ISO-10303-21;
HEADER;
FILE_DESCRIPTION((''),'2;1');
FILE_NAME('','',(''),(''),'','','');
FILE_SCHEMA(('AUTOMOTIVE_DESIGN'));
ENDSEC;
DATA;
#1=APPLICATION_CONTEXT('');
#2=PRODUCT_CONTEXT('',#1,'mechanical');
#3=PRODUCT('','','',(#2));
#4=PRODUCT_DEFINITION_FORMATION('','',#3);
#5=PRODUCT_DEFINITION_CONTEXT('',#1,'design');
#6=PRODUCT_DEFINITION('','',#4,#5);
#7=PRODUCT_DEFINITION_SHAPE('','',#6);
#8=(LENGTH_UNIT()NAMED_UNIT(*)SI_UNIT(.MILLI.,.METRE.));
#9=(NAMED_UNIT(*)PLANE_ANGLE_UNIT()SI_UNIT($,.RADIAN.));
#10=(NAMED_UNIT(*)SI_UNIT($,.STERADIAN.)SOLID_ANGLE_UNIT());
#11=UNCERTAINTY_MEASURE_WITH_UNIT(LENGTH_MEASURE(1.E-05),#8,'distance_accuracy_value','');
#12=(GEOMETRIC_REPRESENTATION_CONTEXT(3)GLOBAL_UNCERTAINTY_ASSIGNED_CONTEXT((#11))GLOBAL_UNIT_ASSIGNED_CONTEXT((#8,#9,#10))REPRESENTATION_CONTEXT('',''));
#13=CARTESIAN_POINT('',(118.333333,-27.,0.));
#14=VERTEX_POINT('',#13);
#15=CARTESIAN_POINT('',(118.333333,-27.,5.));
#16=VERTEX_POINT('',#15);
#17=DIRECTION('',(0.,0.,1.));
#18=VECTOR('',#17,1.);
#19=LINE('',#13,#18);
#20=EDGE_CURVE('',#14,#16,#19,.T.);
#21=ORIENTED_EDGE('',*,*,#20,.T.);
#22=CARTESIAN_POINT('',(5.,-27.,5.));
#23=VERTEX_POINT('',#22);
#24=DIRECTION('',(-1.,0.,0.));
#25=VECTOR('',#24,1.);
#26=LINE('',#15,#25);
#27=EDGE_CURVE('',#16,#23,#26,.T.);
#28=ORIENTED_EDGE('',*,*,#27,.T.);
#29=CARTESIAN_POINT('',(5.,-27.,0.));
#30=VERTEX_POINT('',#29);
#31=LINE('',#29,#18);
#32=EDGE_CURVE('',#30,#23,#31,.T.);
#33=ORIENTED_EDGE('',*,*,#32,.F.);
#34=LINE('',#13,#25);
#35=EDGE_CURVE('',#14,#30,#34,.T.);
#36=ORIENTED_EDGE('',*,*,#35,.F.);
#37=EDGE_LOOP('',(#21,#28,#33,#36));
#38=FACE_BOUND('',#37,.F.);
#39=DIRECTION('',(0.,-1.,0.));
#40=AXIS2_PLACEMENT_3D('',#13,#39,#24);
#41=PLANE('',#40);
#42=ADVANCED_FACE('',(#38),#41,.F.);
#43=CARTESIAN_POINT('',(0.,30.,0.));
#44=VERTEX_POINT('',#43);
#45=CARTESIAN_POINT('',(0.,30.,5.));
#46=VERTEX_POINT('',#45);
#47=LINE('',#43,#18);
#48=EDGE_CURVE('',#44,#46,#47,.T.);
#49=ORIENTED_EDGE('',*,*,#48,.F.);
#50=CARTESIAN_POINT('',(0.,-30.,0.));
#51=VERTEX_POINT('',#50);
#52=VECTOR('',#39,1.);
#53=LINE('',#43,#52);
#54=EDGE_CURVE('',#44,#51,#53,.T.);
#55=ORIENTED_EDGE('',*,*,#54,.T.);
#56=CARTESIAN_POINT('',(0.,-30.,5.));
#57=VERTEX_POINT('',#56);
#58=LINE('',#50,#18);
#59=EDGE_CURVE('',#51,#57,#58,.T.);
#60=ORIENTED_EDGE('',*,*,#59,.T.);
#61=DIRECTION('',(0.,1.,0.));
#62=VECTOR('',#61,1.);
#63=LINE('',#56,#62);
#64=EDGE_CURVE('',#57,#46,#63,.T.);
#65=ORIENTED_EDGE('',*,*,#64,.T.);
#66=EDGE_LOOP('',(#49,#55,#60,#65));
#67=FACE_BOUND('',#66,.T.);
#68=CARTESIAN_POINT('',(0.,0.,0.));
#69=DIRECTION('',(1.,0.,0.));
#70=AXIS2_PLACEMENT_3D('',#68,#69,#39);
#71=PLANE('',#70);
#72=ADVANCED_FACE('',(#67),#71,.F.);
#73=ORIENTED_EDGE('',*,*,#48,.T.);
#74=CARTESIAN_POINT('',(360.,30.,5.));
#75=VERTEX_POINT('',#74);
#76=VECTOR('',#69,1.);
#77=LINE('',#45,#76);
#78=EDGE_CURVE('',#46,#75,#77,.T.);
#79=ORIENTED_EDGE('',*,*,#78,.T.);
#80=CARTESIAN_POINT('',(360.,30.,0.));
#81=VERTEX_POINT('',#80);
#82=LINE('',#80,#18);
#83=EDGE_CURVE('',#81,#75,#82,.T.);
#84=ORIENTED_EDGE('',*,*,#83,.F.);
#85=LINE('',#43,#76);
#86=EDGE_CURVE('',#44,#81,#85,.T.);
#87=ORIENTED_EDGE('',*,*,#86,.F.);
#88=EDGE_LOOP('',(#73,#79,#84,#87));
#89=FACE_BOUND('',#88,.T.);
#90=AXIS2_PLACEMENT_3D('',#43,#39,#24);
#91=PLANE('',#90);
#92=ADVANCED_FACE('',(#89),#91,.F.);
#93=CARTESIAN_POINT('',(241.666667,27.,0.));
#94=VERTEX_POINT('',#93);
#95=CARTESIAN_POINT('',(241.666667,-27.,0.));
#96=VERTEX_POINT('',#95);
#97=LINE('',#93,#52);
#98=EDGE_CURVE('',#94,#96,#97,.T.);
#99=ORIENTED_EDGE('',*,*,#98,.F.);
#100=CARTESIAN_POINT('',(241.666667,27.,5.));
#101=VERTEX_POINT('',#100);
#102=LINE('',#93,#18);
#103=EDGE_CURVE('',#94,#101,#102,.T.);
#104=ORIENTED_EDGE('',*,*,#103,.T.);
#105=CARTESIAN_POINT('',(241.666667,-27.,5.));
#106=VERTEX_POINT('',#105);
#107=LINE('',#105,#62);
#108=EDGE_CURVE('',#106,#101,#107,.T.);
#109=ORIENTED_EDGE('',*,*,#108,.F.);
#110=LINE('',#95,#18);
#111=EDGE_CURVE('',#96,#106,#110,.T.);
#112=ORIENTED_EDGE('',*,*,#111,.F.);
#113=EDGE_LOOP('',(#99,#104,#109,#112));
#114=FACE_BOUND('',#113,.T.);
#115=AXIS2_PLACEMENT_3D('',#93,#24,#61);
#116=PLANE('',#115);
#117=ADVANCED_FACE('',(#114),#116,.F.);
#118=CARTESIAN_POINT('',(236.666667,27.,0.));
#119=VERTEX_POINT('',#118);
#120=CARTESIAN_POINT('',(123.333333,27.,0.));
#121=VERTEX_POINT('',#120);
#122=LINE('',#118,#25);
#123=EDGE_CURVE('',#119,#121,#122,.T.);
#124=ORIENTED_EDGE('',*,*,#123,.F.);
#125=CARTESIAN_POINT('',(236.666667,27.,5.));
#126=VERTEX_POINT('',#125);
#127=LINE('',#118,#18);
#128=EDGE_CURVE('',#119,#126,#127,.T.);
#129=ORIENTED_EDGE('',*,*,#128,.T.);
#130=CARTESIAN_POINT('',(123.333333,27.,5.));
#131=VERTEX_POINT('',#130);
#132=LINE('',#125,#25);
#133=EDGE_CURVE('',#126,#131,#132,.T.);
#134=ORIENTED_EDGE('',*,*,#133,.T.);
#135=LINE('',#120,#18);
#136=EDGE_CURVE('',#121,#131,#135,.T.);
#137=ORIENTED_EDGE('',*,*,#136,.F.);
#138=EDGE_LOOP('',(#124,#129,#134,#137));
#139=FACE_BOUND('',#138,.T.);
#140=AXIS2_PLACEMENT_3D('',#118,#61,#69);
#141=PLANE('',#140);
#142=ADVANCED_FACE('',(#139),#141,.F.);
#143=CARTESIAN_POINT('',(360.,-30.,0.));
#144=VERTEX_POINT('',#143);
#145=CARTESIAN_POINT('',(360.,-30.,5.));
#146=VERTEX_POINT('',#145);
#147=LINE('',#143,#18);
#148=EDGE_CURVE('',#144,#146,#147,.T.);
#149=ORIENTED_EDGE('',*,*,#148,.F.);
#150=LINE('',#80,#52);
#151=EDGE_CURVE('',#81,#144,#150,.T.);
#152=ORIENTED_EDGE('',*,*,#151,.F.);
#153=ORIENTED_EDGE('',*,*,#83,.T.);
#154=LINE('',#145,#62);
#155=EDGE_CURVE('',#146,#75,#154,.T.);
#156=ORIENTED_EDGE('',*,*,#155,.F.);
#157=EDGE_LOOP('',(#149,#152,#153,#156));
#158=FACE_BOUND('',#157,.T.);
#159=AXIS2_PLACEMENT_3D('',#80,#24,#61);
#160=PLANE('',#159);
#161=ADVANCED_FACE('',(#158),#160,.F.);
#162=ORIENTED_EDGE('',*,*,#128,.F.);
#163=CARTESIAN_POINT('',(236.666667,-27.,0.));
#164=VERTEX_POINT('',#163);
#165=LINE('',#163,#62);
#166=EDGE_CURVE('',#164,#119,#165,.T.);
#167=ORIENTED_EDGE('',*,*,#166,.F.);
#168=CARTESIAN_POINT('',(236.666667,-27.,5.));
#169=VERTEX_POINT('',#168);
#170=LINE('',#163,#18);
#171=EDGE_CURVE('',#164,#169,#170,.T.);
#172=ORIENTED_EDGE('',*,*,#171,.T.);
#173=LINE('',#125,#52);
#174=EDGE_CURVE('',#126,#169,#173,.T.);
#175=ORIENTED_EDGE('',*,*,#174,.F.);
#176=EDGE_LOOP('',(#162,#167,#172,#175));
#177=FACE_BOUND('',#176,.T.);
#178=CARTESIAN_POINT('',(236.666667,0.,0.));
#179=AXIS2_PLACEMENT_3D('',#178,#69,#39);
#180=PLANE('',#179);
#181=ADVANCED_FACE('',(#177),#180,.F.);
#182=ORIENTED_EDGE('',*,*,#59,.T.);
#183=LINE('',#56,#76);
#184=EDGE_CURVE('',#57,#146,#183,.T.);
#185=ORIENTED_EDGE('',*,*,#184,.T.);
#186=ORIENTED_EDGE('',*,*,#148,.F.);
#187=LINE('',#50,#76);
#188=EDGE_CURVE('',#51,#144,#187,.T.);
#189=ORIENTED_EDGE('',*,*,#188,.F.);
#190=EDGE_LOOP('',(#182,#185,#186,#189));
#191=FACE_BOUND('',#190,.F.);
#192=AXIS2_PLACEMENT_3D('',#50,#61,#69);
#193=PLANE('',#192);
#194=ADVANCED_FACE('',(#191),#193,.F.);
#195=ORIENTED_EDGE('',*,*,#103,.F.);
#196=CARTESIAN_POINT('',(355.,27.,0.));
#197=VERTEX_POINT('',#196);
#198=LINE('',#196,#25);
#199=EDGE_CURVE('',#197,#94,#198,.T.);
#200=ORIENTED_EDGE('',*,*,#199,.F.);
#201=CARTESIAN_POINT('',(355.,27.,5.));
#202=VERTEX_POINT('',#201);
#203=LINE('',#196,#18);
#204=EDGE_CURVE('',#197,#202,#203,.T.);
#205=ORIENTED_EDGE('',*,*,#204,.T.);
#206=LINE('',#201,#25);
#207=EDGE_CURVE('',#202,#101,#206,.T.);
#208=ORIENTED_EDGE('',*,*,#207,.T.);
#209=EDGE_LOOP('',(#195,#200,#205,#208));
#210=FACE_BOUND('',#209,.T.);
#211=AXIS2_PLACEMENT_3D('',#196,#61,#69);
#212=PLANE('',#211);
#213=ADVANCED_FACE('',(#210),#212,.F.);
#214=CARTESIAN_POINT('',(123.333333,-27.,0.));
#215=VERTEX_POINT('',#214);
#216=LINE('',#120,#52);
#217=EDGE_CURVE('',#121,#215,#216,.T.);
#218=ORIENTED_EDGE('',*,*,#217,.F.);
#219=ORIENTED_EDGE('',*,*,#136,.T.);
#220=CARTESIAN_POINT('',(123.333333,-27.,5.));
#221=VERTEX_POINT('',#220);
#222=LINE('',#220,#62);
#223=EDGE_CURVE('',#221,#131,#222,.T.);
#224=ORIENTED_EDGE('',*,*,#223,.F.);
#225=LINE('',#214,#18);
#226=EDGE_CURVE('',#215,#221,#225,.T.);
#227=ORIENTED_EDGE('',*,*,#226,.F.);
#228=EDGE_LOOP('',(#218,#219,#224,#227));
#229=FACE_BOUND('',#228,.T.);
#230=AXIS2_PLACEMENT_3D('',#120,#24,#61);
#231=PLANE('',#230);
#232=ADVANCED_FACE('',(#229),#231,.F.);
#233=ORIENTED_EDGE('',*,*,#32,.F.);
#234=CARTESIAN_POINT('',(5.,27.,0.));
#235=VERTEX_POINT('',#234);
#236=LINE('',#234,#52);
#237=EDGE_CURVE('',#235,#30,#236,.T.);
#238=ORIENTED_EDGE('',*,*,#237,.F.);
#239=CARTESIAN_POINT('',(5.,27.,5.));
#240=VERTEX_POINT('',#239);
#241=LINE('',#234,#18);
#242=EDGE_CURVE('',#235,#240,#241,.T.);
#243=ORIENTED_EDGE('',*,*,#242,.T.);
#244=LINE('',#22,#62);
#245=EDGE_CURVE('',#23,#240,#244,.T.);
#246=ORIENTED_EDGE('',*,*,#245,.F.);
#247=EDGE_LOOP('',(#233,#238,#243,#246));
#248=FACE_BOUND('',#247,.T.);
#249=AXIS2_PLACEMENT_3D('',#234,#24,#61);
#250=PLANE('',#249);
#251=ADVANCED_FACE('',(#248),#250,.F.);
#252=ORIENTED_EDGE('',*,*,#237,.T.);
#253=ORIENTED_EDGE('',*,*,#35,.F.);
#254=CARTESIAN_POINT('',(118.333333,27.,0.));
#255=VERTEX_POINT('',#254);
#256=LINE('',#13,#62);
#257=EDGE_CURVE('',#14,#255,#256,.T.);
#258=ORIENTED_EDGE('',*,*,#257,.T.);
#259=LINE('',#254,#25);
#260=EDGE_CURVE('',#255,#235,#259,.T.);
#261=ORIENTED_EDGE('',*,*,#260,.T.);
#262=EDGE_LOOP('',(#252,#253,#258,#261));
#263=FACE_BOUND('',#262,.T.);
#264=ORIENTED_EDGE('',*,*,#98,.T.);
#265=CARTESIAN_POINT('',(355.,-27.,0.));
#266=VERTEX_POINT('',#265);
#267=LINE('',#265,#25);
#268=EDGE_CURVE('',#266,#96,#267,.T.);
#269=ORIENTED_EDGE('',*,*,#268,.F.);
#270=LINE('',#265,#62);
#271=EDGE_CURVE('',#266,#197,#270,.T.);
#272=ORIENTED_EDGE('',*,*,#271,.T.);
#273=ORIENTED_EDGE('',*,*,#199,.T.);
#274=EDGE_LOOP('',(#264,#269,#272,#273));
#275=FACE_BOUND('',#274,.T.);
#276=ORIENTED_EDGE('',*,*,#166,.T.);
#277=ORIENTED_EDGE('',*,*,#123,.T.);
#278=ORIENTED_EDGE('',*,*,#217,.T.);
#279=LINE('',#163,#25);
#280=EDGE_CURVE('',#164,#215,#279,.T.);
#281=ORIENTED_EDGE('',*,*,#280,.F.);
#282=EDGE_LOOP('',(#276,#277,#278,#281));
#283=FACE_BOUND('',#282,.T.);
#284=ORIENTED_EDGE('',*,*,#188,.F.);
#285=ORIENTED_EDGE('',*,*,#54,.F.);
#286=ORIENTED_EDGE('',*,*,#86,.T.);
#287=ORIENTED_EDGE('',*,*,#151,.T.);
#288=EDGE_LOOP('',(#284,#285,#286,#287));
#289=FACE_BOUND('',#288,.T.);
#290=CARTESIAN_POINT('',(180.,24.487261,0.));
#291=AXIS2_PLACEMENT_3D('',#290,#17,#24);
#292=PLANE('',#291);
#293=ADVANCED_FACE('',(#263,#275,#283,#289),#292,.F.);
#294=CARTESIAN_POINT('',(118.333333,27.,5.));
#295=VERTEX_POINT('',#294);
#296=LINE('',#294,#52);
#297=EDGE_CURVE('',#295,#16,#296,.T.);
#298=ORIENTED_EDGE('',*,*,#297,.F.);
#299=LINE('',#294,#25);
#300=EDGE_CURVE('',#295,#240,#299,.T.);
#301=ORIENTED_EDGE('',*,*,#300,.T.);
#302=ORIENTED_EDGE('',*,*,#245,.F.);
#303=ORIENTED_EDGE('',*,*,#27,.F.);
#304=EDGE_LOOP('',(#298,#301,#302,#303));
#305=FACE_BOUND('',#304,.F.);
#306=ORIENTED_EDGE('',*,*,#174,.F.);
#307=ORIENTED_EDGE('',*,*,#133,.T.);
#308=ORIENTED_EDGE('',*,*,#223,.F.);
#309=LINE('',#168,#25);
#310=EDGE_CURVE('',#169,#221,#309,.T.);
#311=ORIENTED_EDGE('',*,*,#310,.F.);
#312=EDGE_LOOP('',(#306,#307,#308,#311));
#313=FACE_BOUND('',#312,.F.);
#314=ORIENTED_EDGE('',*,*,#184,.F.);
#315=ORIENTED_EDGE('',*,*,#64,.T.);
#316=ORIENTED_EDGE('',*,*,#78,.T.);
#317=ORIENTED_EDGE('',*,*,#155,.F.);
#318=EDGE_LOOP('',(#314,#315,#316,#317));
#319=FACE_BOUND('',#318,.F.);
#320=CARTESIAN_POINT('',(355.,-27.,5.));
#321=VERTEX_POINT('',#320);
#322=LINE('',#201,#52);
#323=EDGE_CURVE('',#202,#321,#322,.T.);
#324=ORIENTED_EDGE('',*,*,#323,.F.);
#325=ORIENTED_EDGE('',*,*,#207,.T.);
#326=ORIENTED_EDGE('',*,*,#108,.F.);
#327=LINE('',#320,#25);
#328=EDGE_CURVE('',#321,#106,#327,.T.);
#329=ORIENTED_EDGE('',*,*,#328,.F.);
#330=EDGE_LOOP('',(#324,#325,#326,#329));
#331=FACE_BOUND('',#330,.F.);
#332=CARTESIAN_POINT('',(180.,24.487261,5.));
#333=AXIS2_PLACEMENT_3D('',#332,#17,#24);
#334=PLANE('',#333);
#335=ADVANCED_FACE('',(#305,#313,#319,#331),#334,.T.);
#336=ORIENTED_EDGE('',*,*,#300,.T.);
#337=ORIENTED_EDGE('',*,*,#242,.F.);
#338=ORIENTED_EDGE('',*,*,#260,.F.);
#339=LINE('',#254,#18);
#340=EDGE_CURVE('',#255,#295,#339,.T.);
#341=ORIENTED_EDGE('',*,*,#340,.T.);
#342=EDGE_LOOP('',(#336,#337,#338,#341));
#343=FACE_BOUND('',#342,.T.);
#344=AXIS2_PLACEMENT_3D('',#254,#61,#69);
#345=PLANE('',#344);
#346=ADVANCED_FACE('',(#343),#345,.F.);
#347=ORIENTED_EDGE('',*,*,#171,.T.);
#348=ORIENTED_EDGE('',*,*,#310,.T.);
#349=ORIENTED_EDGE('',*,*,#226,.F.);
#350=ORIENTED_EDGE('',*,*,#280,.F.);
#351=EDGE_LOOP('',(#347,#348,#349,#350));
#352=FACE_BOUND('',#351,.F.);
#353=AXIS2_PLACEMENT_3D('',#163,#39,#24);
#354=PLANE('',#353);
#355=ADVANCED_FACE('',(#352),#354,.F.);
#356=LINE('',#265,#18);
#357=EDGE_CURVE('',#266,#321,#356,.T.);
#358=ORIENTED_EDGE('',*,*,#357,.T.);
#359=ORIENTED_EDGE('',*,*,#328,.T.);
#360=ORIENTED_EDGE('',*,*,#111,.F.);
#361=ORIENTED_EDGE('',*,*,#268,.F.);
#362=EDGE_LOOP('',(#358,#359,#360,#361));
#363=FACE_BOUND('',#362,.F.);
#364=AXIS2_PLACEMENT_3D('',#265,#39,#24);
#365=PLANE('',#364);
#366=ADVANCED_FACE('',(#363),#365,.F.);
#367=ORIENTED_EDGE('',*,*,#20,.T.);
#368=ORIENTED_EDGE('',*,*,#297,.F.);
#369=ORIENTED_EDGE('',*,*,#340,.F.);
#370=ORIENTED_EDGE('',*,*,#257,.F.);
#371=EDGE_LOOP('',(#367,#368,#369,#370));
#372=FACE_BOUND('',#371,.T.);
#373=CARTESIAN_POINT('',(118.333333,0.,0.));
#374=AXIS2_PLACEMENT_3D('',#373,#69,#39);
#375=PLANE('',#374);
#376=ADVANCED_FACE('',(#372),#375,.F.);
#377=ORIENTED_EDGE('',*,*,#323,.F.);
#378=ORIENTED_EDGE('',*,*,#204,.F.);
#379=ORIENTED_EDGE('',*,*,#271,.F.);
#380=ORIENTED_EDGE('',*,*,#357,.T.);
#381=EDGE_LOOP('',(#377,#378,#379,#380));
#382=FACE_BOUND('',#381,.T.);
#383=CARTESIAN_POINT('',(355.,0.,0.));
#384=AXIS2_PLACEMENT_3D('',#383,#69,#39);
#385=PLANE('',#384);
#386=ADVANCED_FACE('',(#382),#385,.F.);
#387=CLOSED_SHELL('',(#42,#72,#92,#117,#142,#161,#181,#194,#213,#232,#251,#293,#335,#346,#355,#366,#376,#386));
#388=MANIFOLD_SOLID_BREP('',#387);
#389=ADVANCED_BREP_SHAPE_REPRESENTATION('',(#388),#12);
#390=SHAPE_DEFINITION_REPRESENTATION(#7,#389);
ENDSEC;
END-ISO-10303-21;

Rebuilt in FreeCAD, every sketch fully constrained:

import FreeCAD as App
import Part
import Sketcher
Q = App.Units.Quantity


def add_polygon(sketch, points):
    """Adds a closed chain of lines whose ends are joined by coincident constraints."""
    first, n = sketch.GeometryCount, len(points)
    for a, b in zip(points, points[1:] + points[:1]):
        sketch.addGeometry(Part.LineSegment(App.Vector(*a, 0), App.Vector(*b, 0)), False)
    for i in range(n):
        sketch.addConstraint(Sketcher.Constraint("Coincident", first + i, 2, first + (i + 1) % n, 1))

doc = App.newDocument("Part")
body = doc.addObject("PartDesign::Body", "Body")

# Sketch on XY plane
sketch1 = body.newObject("Sketcher::SketchObject", "Sketch")
sketch1.AttachmentSupport = (doc.getObject("XY_Plane"), [""])
sketch1.MapMode = "FlatFace"
add_polygon(sketch1, [(5, 0), (0, 0), (0, -30), (360, -30), (360, 0), (355, 0), (355, -27), (242, -27), (242, 0), (237, 0), (237, -27), (123, -27), (123, 0), (118, 0), (118, -27), (5, -27)])  # lines 0-15
sketch1.addConstraint([
    Sketcher.Constraint("Horizontal", 0),
    Sketcher.Constraint("Vertical", 1),
    Sketcher.Constraint("Horizontal", 2),
    Sketcher.Constraint("Vertical", 3),
    Sketcher.Constraint("Horizontal", 4),
    Sketcher.Constraint("Vertical", 5),
    Sketcher.Constraint("Horizontal", 6),
    Sketcher.Constraint("Vertical", 7),
    Sketcher.Constraint("Horizontal", 8),
    Sketcher.Constraint("Vertical", 9),
    Sketcher.Constraint("Horizontal", 10),
    Sketcher.Constraint("Vertical", 11),
    Sketcher.Constraint("Horizontal", 12),
    Sketcher.Constraint("Vertical", 13),
    Sketcher.Constraint("Horizontal", 14),
    Sketcher.Constraint("Vertical", 15),
    Sketcher.Constraint("Coincident", 0, 2, -1, 1),
    Sketcher.Constraint("PointOnObject", 3, 2, -1),
    Sketcher.Constraint("PointOnObject", 7, 2, -1),
    Sketcher.Constraint("PointOnObject", 11, 2, -1),
    Sketcher.Constraint("Horizontal", 6, 2, 9, 2),
    Sketcher.Constraint("Horizontal", 10, 2, 13, 2),
    Sketcher.Constraint("Equal", 0, 4),
    Sketcher.Constraint("Equal", 4, 8),
    Sketcher.Constraint("Equal", 6, 10),
    Sketcher.Constraint("Equal", 8, 12),
    Sketcher.Constraint("Equal", 10, 14),
    Sketcher.Constraint("DistanceX", 0, 2, 0, 1, Q("5 mm")),
    Sketcher.Constraint("DistanceX", 2, 1, 2, 2, Q("360 mm")),
    Sketcher.Constraint("DistanceY", 1, 2, 1, 1, Q("30 mm")),
    Sketcher.Constraint("DistanceY", 5, 2, 5, 1, Q("27 mm")),
])
pad1 = body.newObject("PartDesign::Pad", "Pad")
pad1.Profile = sketch1
pad1.Length = 5
body2 = doc.addObject("PartDesign::Body", "Body001")
doc.recompute()

body2.BaseFeature = body
doc.recompute()

mirroring = doc.addObject("Part::Mirroring", "Mirroring")
mirroring.Source = body
mirroring.Base = App.Vector(2.5, 0, 2.5)
mirroring.Normal = App.Vector(0, 1, 0)
body3 = doc.addObject("PartDesign::Body", "Body002")
body3.BaseFeature = mirroring
boolean = body2.newObject("PartDesign::Boolean", "Boolean")
boolean.Type = "Fuse"
boolean.addObjects([body3])
doc.recompute()
mirroring.Visibility = False

doc.recompute()
